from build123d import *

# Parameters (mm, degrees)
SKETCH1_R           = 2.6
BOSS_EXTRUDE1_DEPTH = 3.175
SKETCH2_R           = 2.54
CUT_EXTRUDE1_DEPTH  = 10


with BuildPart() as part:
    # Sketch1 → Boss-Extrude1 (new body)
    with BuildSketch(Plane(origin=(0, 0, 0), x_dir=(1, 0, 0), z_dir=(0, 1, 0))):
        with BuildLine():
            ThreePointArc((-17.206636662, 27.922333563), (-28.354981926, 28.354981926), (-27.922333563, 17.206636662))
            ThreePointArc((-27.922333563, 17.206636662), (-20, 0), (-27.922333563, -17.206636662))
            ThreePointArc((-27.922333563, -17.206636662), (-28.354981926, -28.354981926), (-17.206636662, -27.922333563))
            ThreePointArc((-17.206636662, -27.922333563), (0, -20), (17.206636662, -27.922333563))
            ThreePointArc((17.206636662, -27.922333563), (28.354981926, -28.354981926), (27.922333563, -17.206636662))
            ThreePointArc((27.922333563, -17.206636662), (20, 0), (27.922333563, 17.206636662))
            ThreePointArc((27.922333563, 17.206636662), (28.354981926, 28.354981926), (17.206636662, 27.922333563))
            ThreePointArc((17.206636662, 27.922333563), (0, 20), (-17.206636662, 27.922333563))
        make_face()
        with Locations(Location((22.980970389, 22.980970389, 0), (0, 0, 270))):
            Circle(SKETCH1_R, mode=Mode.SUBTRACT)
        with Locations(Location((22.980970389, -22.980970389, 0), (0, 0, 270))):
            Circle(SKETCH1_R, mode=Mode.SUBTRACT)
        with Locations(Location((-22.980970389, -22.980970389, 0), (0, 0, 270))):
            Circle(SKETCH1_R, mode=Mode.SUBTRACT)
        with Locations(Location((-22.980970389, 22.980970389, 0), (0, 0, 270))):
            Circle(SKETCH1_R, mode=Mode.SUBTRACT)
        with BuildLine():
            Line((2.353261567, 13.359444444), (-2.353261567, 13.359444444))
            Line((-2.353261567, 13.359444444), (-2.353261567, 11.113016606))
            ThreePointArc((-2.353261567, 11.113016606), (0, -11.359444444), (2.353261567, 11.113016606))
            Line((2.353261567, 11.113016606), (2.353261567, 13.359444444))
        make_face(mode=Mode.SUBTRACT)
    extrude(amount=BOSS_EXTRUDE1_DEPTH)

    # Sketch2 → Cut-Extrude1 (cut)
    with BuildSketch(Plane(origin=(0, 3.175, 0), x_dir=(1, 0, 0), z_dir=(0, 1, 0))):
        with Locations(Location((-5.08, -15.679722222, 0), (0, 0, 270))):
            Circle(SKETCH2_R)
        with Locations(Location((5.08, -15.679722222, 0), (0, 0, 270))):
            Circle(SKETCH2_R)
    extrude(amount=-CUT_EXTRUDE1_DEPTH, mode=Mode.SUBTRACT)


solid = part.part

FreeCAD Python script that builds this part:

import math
import FreeCAD as App
import Part
import Sketcher

doc = App.newDocument("Part")
params = doc.addObject("Spreadsheet::Sheet", "Params")
for row, (alias, value) in enumerate([
    ("sketch1_diameter", "5.2 mm"),
    ("sketch1_radius", "7.6 mm"),
    ("pad1_length", "3.175 mm"),
    ("sketch2_diameter", "5.08 mm"),
    ("pocket1_length", "10 mm"),
], start=1):
    params.set(f"A{row}", alias)
    params.set(f"B{row}", "=" + value)
    params.setAlias(f"B{row}", alias)

body = doc.addObject("PartDesign::Body", "Body")

sketch1 = doc.addObject("Sketcher::SketchObject", "Sketch")
body.addObject(sketch1)
sketch1.AttachmentSupport = (doc.XZ_Plane, [""])
sketch1.MapMode = "FlatFace"
sketch1.addGeometry([
    Part.ArcOfCircle(Part.Circle(App.Vector(-22.98097, -22.98097, 0), App.Vector(0, 0, 1), 7.6), math.radians(130.555127), math.radians(319.444873)),
    Part.ArcOfCircle(Part.Circle(App.Vector(-42.646845, 0, 0), App.Vector(0, 0, 1), 22.646845), math.radians(-49.444873), math.radians(49.444873)),
    Part.ArcOfCircle(Part.Circle(App.Vector(-22.98097, 22.98097, 0), App.Vector(0, 0, 1), 7.6), math.radians(40.555127), math.radians(229.444873)),
    Part.ArcOfCircle(Part.Circle(App.Vector(0, 42.646845, 0), App.Vector(0, 0, 1), 22.646845), math.radians(-139.444873), math.radians(-40.555127)),
    Part.ArcOfCircle(Part.Circle(App.Vector(22.98097, 22.98097, 0), App.Vector(0, 0, 1), 7.6), math.radians(-49.444873), math.radians(139.444873)),
    Part.ArcOfCircle(Part.Circle(App.Vector(42.646845, 0, 0), App.Vector(0, 0, 1), 22.646845), math.radians(130.555127), math.radians(229.444873)),
    Part.ArcOfCircle(Part.Circle(App.Vector(22.98097, -22.98097, 0), App.Vector(0, 0, 1), 7.6), math.radians(-139.444873), math.radians(49.444873)),
    Part.ArcOfCircle(Part.Circle(App.Vector(0, -42.646845, 0), App.Vector(0, 0, 1), 22.646845), math.radians(40.555127), math.radians(139.444873)),
    Part.Circle(App.Vector(-22.98097, 22.98097, 0), App.Vector(0, 0, 1), 2.6),
    Part.Circle(App.Vector(22.98097, 22.98097, 0), App.Vector(0, 0, 1), 2.6),
    Part.Circle(App.Vector(-22.98097, -22.98097, 0), App.Vector(0, 0, 1), 2.6),
    Part.LineSegment(App.Vector(-2.353262, -13.359444, 0), App.Vector(2.353262, -13.359444, 0)),
    Part.LineSegment(App.Vector(2.353262, -13.359444, 0), App.Vector(2.353262, -11.113017, 0)),
    Part.ArcOfCircle(Part.Circle(App.Vector(0, 0, 0), App.Vector(0, 0, 1), 11.359444), math.radians(-78.043826), math.radians(258.043826)),
    Part.LineSegment(App.Vector(-2.353262, -11.113017, 0), App.Vector(-2.353262, -13.359444, 0)),
    Part.Circle(App.Vector(22.98097, -22.98097, 0), App.Vector(0, 0, 1), 2.6),
], False)
sketch1.addConstraint([
    Sketcher.Constraint("Tangent", 0, 1, 1, 1),
    Sketcher.Constraint("Tangent", 1, 2, 2, 2),
    Sketcher.Constraint("Tangent", 2, 1, 3, 1),
    Sketcher.Constraint("Tangent", 3, 2, 4, 2),
    Sketcher.Constraint("Tangent", 4, 1, 5, 1),
    Sketcher.Constraint("Tangent", 5, 2, 6, 2),
    Sketcher.Constraint("Tangent", 6, 1, 7, 1),
    Sketcher.Constraint("Tangent", 7, 2, 0, 2),
    Sketcher.Constraint("Coincident", 11, 2, 12, 1),
    Sketcher.Constraint("Coincident", 12, 2, 13, 1),
    Sketcher.Constraint("Coincident", 13, 2, 14, 1),
    Sketcher.Constraint("Coincident", 14, 2, 11, 1),
    Sketcher.Constraint("Horizontal", 11),
    Sketcher.Constraint("Vertical", 12),
    Sketcher.Constraint("Vertical", 14),
    Sketcher.Constraint("Coincident", 13, 3, -1, 1),
    Sketcher.Constraint("Coincident", 8, 3, 2, 3),
    Sketcher.Constraint("Coincident", 9, 3, 4, 3),
    Sketcher.Constraint("Coincident", 10, 3, 0, 3),
    Sketcher.Constraint("Coincident", 15, 3, 6, 3),
    Sketcher.Constraint("Equal", 0, 2),
    Sketcher.Constraint("Equal", 1, 3),
    Sketcher.Constraint("Equal", 2, 4),
    Sketcher.Constraint("Equal", 3, 5),
    Sketcher.Constraint("Equal", 4, 6),
    Sketcher.Constraint("Equal", 5, 7),
    Sketcher.Constraint("Equal", 8, 9),
    Sketcher.Constraint("Equal", 9, 10),
    Sketcher.Constraint("Equal", 10, 15),
    Sketcher.Constraint("Symmetric", 0, 3, 4, 3, -1, 1),
    Sketcher.Constraint("Symmetric", 2, 3, 6, 3, -1, 1),
    Sketcher.Constraint("Symmetric", 2, 3, 4, 3, -2),
    Sketcher.Constraint("Horizontal", 12, 2, 13, 2),
    Sketcher.Constraint("Diameter", 8, 5.2),
    Sketcher.Constraint("Radius", 0, 7.6),
    Sketcher.Constraint("Radius", 1, 22.646845),
    Sketcher.Constraint("Radius", 13, 11.359444),
    Sketcher.Constraint("DistanceX", 7, 2, 11, 2, 19.559898),
    Sketcher.Constraint("DistanceX", 11, 1, 11, 2, 4.706523),
    Sketcher.Constraint("DistanceY", 12, 1, 12, 2, 2.246428),
    Sketcher.Constraint("DistanceY", 0, 3, -1, 1, 22.98097),
])
sketch1.setExpression("Constraints[33]", "Params.sketch1_diameter")
sketch1.setExpression("Constraints[34]", "Params.sketch1_radius")
pad1 = doc.addObject("PartDesign::Pad", "Pad")
body.addObject(pad1)
pad1.Profile = sketch1
pad1.setExpression("Length", "Params.pad1_length")
pad1.Reversed = True

sketch2 = doc.addObject("Sketcher::SketchObject", "Sketch001")
body.addObject(sketch2)
sketch2.AttachmentSupport = (doc.XZ_Plane, [""])
sketch2.MapMode = "FlatFace"
sketch2.AttachmentOffset = App.Placement(App.Vector(0, 0, -3.175), App.Rotation())
sketch2.addGeometry([
    Part.Circle(App.Vector(-5.08, 15.679722, 0), App.Vector(0, 0, 1), 2.54),
    Part.Circle(App.Vector(5.08, 15.679722, 0), App.Vector(0, 0, 1), 2.54),
], False)
sketch2.addConstraint([
    Sketcher.Constraint("Equal", 0, 1),
    Sketcher.Constraint("Symmetric", 0, 3, 1, 3, -2),
    Sketcher.Constraint("Diameter", 0, 5.08),
    Sketcher.Constraint("DistanceX", 0, 3, -1, 1, 5.08),
    Sketcher.Constraint("DistanceY", -1, 1, 0, 3, 15.679722),
])
sketch2.setExpression("Constraints[2]", "Params.sketch2_diameter")
pocket1 = doc.addObject("PartDesign::Pocket", "Pocket")
body.addObject(pocket1)
pocket1.Profile = sketch2
pocket1.setExpression("Length", "Params.pocket1_length")
pocket1.Reversed = True

doc.recompute()
